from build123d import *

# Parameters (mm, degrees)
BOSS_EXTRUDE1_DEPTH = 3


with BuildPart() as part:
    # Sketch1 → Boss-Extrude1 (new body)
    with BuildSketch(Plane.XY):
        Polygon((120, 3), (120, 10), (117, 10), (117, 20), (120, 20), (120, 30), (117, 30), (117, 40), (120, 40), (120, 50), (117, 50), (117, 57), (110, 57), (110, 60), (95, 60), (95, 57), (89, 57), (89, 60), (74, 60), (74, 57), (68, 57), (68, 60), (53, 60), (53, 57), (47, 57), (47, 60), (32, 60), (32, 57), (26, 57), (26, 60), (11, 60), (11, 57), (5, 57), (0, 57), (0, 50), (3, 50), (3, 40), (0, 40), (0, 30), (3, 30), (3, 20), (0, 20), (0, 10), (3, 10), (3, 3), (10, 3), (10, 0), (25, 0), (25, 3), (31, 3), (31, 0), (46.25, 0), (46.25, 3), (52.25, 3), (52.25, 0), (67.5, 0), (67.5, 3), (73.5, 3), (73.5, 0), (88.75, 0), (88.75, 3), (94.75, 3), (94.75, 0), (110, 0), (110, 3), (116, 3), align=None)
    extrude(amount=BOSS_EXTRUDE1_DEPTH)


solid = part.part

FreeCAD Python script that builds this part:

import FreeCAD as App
import Part
import Sketcher

doc = App.newDocument("Part")
params = doc.addObject("Spreadsheet::Sheet", "Params")
for row, (alias, value) in enumerate([
    ("sketch1_width", "3 mm"),
    ("sketch1_width2", "7 mm"),
    ("sketch1_width3", "15 mm"),
    ("sketch1_width4", "6 mm"),
    ("sketch1_width5", "11 mm"),
    ("pad1_length", "3 mm"),
], start=1):
    params.set(f"A{row}", alias)
    params.set(f"B{row}", "=" + value)
    params.setAlias(f"B{row}", alias)

body = doc.addObject("PartDesign::Body", "Body")

sketch1 = body.newObject("Sketcher::SketchObject", "Sketch")
sketch1.AttachmentSupport = (doc.getObject("XY_Plane"), [""])
sketch1.MapMode = "FlatFace"
sketch1.addGeometry(Part.LineSegment(App.Vector(120, 3, 0), App.Vector(120, 10, 0)), False)
sketch1.addGeometry(Part.LineSegment(App.Vector(120, 10, 0), App.Vector(117, 10, 0)), False)
sketch1.addGeometry(Part.LineSegment(App.Vector(117, 10, 0), App.Vector(117, 20, 0)), False)
sketch1.addGeometry(Part.LineSegment(App.Vector(117, 20, 0), App.Vector(120, 20, 0)), False)
sketch1.addGeometry(Part.LineSegment(App.Vector(120, 20, 0), App.Vector(120, 30, 0)), False)
sketch1.addGeometry(Part.LineSegment(App.Vector(120, 30, 0), App.Vector(117, 30, 0)), False)
sketch1.addGeometry(Part.LineSegment(App.Vector(117, 30, 0), App.Vector(117, 40, 0)), False)
sketch1.addGeometry(Part.LineSegment(App.Vector(117, 40, 0), App.Vector(120, 40, 0)), False)
sketch1.addGeometry(Part.LineSegment(App.Vector(120, 40, 0), App.Vector(120, 50, 0)), False)
sketch1.addGeometry(Part.LineSegment(App.Vector(120, 50, 0), App.Vector(117, 50, 0)), False)
sketch1.addGeometry(Part.LineSegment(App.Vector(117, 50, 0), App.Vector(117, 57, 0)), False)
sketch1.addGeometry(Part.LineSegment(App.Vector(117, 57, 0), App.Vector(110, 57, 0)), False)
sketch1.addGeometry(Part.LineSegment(App.Vector(110, 57, 0), App.Vector(110, 60, 0)), False)
sketch1.addGeometry(Part.LineSegment(App.Vector(110, 60, 0), App.Vector(95, 60, 0)), False)
sketch1.addGeometry(Part.LineSegment(App.Vector(95, 60, 0), App.Vector(95, 57, 0)), False)
sketch1.addGeometry(Part.LineSegment(App.Vector(95, 57, 0), App.Vector(89, 57, 0)), False)
sketch1.addGeometry(Part.LineSegment(App.Vector(89, 57, 0), App.Vector(89, 60, 0)), False)
sketch1.addGeometry(Part.LineSegment(App.Vector(89, 60, 0), App.Vector(74, 60, 0)), False)
sketch1.addGeometry(Part.LineSegment(App.Vector(74, 60, 0), App.Vector(74, 57, 0)), False)
sketch1.addGeometry(Part.LineSegment(App.Vector(74, 57, 0), App.Vector(68, 57, 0)), False)
sketch1.addGeometry(Part.LineSegment(App.Vector(68, 57, 0), App.Vector(68, 60, 0)), False)
sketch1.addGeometry(Part.LineSegment(App.Vector(68, 60, 0), App.Vector(53, 60, 0)), False)
sketch1.addGeometry(Part.LineSegment(App.Vector(53, 60, 0), App.Vector(53, 57, 0)), False)
sketch1.addGeometry(Part.LineSegment(App.Vector(53, 57, 0), App.Vector(47, 57, 0)), False)
sketch1.addGeometry(Part.LineSegment(App.Vector(47, 57, 0), App.Vector(47, 60, 0)), False)
sketch1.addGeometry(Part.LineSegment(App.Vector(47, 60, 0), App.Vector(32, 60, 0)), False)
sketch1.addGeometry(Part.LineSegment(App.Vector(32, 60, 0), App.Vector(32, 57, 0)), False)
sketch1.addGeometry(Part.LineSegment(App.Vector(32, 57, 0), App.Vector(26, 57, 0)), False)
sketch1.addGeometry(Part.LineSegment(App.Vector(26, 57, 0), App.Vector(26, 60, 0)), False)
sketch1.addGeometry(Part.LineSegment(App.Vector(26, 60, 0), App.Vector(11, 60, 0)), False)
sketch1.addGeometry(Part.LineSegment(App.Vector(11, 60, 0), App.Vector(11, 57, 0)), False)
sketch1.addGeometry(Part.LineSegment(App.Vector(11, 57, 0), App.Vector(0, 57, 0)), False)
sketch1.addGeometry(Part.LineSegment(App.Vector(0, 57, 0), App.Vector(0, 50, 0)), False)
sketch1.addGeometry(Part.LineSegment(App.Vector(0, 50, 0), App.Vector(3, 50, 0)), False)
sketch1.addGeometry(Part.LineSegment(App.Vector(3, 50, 0), App.Vector(3, 40, 0)), False)
sketch1.addGeometry(Part.LineSegment(App.Vector(3, 40, 0), App.Vector(0, 40, 0)), False)
sketch1.addGeometry(Part.LineSegment(App.Vector(0, 40, 0), App.Vector(0, 30, 0)), False)
sketch1.addGeometry(Part.LineSegment(App.Vector(0, 30, 0), App.Vector(3, 30, 0)), False)
sketch1.addGeometry(Part.LineSegment(App.Vector(3, 30, 0), App.Vector(3, 20, 0)), False)
sketch1.addGeometry(Part.LineSegment(App.Vector(3, 20, 0), App.Vector(0, 20, 0)), False)
sketch1.addGeometry(Part.LineSegment(App.Vector(0, 20, 0), App.Vector(0, 10, 0)), False)
sketch1.addGeometry(Part.LineSegment(App.Vector(0, 10, 0), App.Vector(3, 10, 0)), False)
sketch1.addGeometry(Part.LineSegment(App.Vector(3, 10, 0), App.Vector(3, 3, 0)), False)
sketch1.addGeometry(Part.LineSegment(App.Vector(3, 3, 0), App.Vector(10, 3, 0)), False)
sketch1.addGeometry(Part.LineSegment(App.Vector(10, 3, 0), App.Vector(10, 0, 0)), False)
sketch1.addGeometry(Part.LineSegment(App.Vector(10, 0, 0), App.Vector(25, 0, 0)), False)
sketch1.addGeometry(Part.LineSegment(App.Vector(25, 0, 0), App.Vector(25, 3, 0)), False)
sketch1.addGeometry(Part.LineSegment(App.Vector(25, 3, 0), App.Vector(31, 3, 0)), False)
sketch1.addGeometry(Part.LineSegment(App.Vector(31, 3, 0), App.Vector(31, 0, 0)), False)
sketch1.addGeometry(Part.LineSegment(App.Vector(31, 0, 0), App.Vector(46.2, 0, 0)), False)
sketch1.addGeometry(Part.LineSegment(App.Vector(46.2, 0, 0), App.Vector(46.2, 3, 0)), False)
sketch1.addGeometry(Part.LineSegment(App.Vector(46.2, 3, 0), App.Vector(52.2, 3, 0)), False)
sketch1.addGeometry(Part.LineSegment(App.Vector(52.2, 3, 0), App.Vector(52.2, 0, 0)), False)
sketch1.addGeometry(Part.LineSegment(App.Vector(52.2, 0, 0), App.Vector(67.5, 0, 0)), False)
sketch1.addGeometry(Part.LineSegment(App.Vector(67.5, 0, 0), App.Vector(67.5, 3, 0)), False)
sketch1.addGeometry(Part.LineSegment(App.Vector(67.5, 3, 0), App.Vector(73.5, 3, 0)), False)
sketch1.addGeometry(Part.LineSegment(App.Vector(73.5, 3, 0), App.Vector(73.5, 0, 0)), False)
sketch1.addGeometry(Part.LineSegment(App.Vector(73.5, 0, 0), App.Vector(88.8, 0, 0)), False)
sketch1.addGeometry(Part.LineSegment(App.Vector(88.8, 0, 0), App.Vector(88.8, 3, 0)), False)
sketch1.addGeometry(Part.LineSegment(App.Vector(88.8, 3, 0), App.Vector(94.8, 3, 0)), False)
sketch1.addGeometry(Part.LineSegment(App.Vector(94.8, 3, 0), App.Vector(94.8, 0, 0)), False)
sketch1.addGeometry(Part.LineSegment(App.Vector(94.8, 0, 0), App.Vector(110, 0, 0)), False)
sketch1.addGeometry(Part.LineSegment(App.Vector(110, 0, 0), App.Vector(110, 3, 0)), False)
sketch1.addGeometry(Part.LineSegment(App.Vector(110, 3, 0), App.Vector(120, 3, 0)), False)
sketch1.addConstraint(Sketcher.Constraint("Coincident", 0, 2, 1, 1))
sketch1.addConstraint(Sketcher.Constraint("Coincident", 1, 2, 2, 1))
sketch1.addConstraint(Sketcher.Constraint("Coincident", 2, 2, 3, 1))
sketch1.addConstraint(Sketcher.Constraint("Coincident", 3, 2, 4, 1))
sketch1.addConstraint(Sketcher.Constraint("Coincident", 4, 2, 5, 1))
sketch1.addConstraint(Sketcher.Constraint("Coincident", 5, 2, 6, 1))
sketch1.addConstraint(Sketcher.Constraint("Coincident", 6, 2, 7, 1))
sketch1.addConstraint(Sketcher.Constraint("Coincident", 7, 2, 8, 1))
sketch1.addConstraint(Sketcher.Constraint("Coincident", 8, 2, 9, 1))
sketch1.addConstraint(Sketcher.Constraint("Coincident", 9, 2, 10, 1))
sketch1.addConstraint(Sketcher.Constraint("Coincident", 10, 2, 11, 1))
sketch1.addConstraint(Sketcher.Constraint("Coincident", 11, 2, 12, 1))
sketch1.addConstraint(Sketcher.Constraint("Coincident", 12, 2, 13, 1))
sketch1.addConstraint(Sketcher.Constraint("Coincident", 13, 2, 14, 1))
sketch1.addConstraint(Sketcher.Constraint("Coincident", 14, 2, 15, 1))
sketch1.addConstraint(Sketcher.Constraint("Coincident", 15, 2, 16, 1))
sketch1.addConstraint(Sketcher.Constraint("Coincident", 16, 2, 17, 1))
sketch1.addConstraint(Sketcher.Constraint("Coincident", 17, 2, 18, 1))
sketch1.addConstraint(Sketcher.Constraint("Coincident", 18, 2, 19, 1))
sketch1.addConstraint(Sketcher.Constraint("Coincident", 19, 2, 20, 1))
sketch1.addConstraint(Sketcher.Constraint("Coincident", 20, 2, 21, 1))
sketch1.addConstraint(Sketcher.Constraint("Coincident", 21, 2, 22, 1))
sketch1.addConstraint(Sketcher.Constraint("Coincident", 22, 2, 23, 1))
sketch1.addConstraint(Sketcher.Constraint("Coincident", 23, 2, 24, 1))
sketch1.addConstraint(Sketcher.Constraint("Coincident", 24, 2, 25, 1))
sketch1.addConstraint(Sketcher.Constraint("Coincident", 25, 2, 26, 1))
sketch1.addConstraint(Sketcher.Constraint("Coincident", 26, 2, 27, 1))
sketch1.addConstraint(Sketcher.Constraint("Coincident", 27, 2, 28, 1))
sketch1.addConstraint(Sketcher.Constraint("Coincident", 28, 2, 29, 1))
sketch1.addConstraint(Sketcher.Constraint("Coincident", 29, 2, 30, 1))
sketch1.addConstraint(Sketcher.Constraint("Coincident", 30, 2, 31, 1))
sketch1.addConstraint(Sketcher.Constraint("Coincident", 31, 2, 32, 1))
sketch1.addConstraint(Sketcher.Constraint("Coincident", 32, 2, 33, 1))
sketch1.addConstraint(Sketcher.Constraint("Coincident", 33, 2, 34, 1))
sketch1.addConstraint(Sketcher.Constraint("Coincident", 34, 2, 35, 1))
sketch1.addConstraint(Sketcher.Constraint("Coincident", 35, 2, 36, 1))
sketch1.addConstraint(Sketcher.Constraint("Coincident", 36, 2, 37, 1))
sketch1.addConstraint(Sketcher.Constraint("Coincident", 37, 2, 38, 1))
sketch1.addConstraint(Sketcher.Constraint("Coincident", 38, 2, 39, 1))
sketch1.addConstraint(Sketcher.Constraint("Coincident", 39, 2, 40, 1))
sketch1.addConstraint(Sketcher.Constraint("Coincident", 40, 2, 41, 1))
sketch1.addConstraint(Sketcher.Constraint("Coincident", 41, 2, 42, 1))
sketch1.addConstraint(Sketcher.Constraint("Coincident", 42, 2, 43, 1))
sketch1.addConstraint(Sketcher.Constraint("Coincident", 43, 2, 44, 1))
sketch1.addConstraint(Sketcher.Constraint("Coincident", 44, 2, 45, 1))
sketch1.addConstraint(Sketcher.Constraint("Coincident", 45, 2, 46, 1))
sketch1.addConstraint(Sketcher.Constraint("Coincident", 46, 2, 47, 1))
sketch1.addConstraint(Sketcher.Constraint("Coincident", 47, 2, 48, 1))
sketch1.addConstraint(Sketcher.Constraint("Coincident", 48, 2, 49, 1))
sketch1.addConstraint(Sketcher.Constraint("Coincident", 49, 2, 50, 1))
sketch1.addConstraint(Sketcher.Constraint("Coincident", 50, 2, 51, 1))
sketch1.addConstraint(Sketcher.Constraint("Coincident", 51, 2, 52, 1))
sketch1.addConstraint(Sketcher.Constraint("Coincident", 52, 2, 53, 1))
sketch1.addConstraint(Sketcher.Constraint("Coincident", 53, 2, 54, 1))
sketch1.addConstraint(Sketcher.Constraint("Coincident", 54, 2, 55, 1))
sketch1.addConstraint(Sketcher.Constraint("Coincident", 55, 2, 56, 1))
sketch1.addConstraint(Sketcher.Constraint("Coincident", 56, 2, 57, 1))
sketch1.addConstraint(Sketcher.Constraint("Coincident", 57, 2, 58, 1))
sketch1.addConstraint(Sketcher.Constraint("Coincident", 58, 2, 59, 1))
sketch1.addConstraint(Sketcher.Constraint("Coincident", 59, 2, 60, 1))
sketch1.addConstraint(Sketcher.Constraint("Coincident", 60, 2, 61, 1))
sketch1.addConstraint(Sketcher.Constraint("Coincident", 61, 2, 62, 1))
sketch1.addConstraint(Sketcher.Constraint("Coincident", 62, 2, 63, 1))
sketch1.addConstraint(Sketcher.Constraint("Coincident", 63, 2, 0, 1))
sketch1.addConstraint(Sketcher.Constraint("Vertical", 0))
sketch1.addConstraint(Sketcher.Constraint("Horizontal", 1))
sketch1.addConstraint(Sketcher.Constraint("Vertical", 2))
sketch1.addConstraint(Sketcher.Constraint("Horizontal", 3))
sketch1.addConstraint(Sketcher.Constraint("Vertical", 4))
sketch1.addConstraint(Sketcher.Constraint("Horizontal", 5))
sketch1.addConstraint(Sketcher.Constraint("Vertical", 6))
sketch1.addConstraint(Sketcher.Constraint("Horizontal", 7))
sketch1.addConstraint(Sketcher.Constraint("Vertical", 8))
sketch1.addConstraint(Sketcher.Constraint("Horizontal", 9))
sketch1.addConstraint(Sketcher.Constraint("Vertical", 10))
sketch1.addConstraint(Sketcher.Constraint("Horizontal", 11))
sketch1.addConstraint(Sketcher.Constraint("Vertical", 12))
sketch1.addConstraint(Sketcher.Constraint("Horizontal", 13))
sketch1.addConstraint(Sketcher.Constraint("Vertical", 14))
sketch1.addConstraint(Sketcher.Constraint("Horizontal", 15))
sketch1.addConstraint(Sketcher.Constraint("Vertical", 16))
sketch1.addConstraint(Sketcher.Constraint("Horizontal", 17))
sketch1.addConstraint(Sketcher.Constraint("Vertical", 18))
sketch1.addConstraint(Sketcher.Constraint("Horizontal", 19))
sketch1.addConstraint(Sketcher.Constraint("Vertical", 20))
sketch1.addConstraint(Sketcher.Constraint("Horizontal", 21))
sketch1.addConstraint(Sketcher.Constraint("Vertical", 22))
sketch1.addConstraint(Sketcher.Constraint("Horizontal", 23))
sketch1.addConstraint(Sketcher.Constraint("Vertical", 24))
sketch1.addConstraint(Sketcher.Constraint("Horizontal", 25))
sketch1.addConstraint(Sketcher.Constraint("Vertical", 26))
sketch1.addConstraint(Sketcher.Constraint("Horizontal", 27))
sketch1.addConstraint(Sketcher.Constraint("Vertical", 28))
sketch1.addConstraint(Sketcher.Constraint("Horizontal", 29))
sketch1.addConstraint(Sketcher.Constraint("Vertical", 30))
sketch1.addConstraint(Sketcher.Constraint("Horizontal", 31))
sketch1.addConstraint(Sketcher.Constraint("Vertical", 32))
sketch1.addConstraint(Sketcher.Constraint("Horizontal", 33))
sketch1.addConstraint(Sketcher.Constraint("Vertical", 34))
sketch1.addConstraint(Sketcher.Constraint("Horizontal", 35))
sketch1.addConstraint(Sketcher.Constraint("Vertical", 36))
sketch1.addConstraint(Sketcher.Constraint("Horizontal", 37))
sketch1.addConstraint(Sketcher.Constraint("Vertical", 38))
sketch1.addConstraint(Sketcher.Constraint("Horizontal", 39))
sketch1.addConstraint(Sketcher.Constraint("Vertical", 40))
sketch1.addConstraint(Sketcher.Constraint("Horizontal", 41))
sketch1.addConstraint(Sketcher.Constraint("Vertical", 42))
sketch1.addConstraint(Sketcher.Constraint("Horizontal", 43))
sketch1.addConstraint(Sketcher.Constraint("Vertical", 44))
sketch1.addConstraint(Sketcher.Constraint("Horizontal", 45))
sketch1.addConstraint(Sketcher.Constraint("Vertical", 46))
sketch1.addConstraint(Sketcher.Constraint("Horizontal", 47))
sketch1.addConstraint(Sketcher.Constraint("Vertical", 48))
sketch1.addConstraint(Sketcher.Constraint("Horizontal", 49))
sketch1.addConstraint(Sketcher.Constraint("Vertical", 50))
sketch1.addConstraint(Sketcher.Constraint("Horizontal", 51))
sketch1.addConstraint(Sketcher.Constraint("Vertical", 52))
sketch1.addConstraint(Sketcher.Constraint("Horizontal", 53))
sketch1.addConstraint(Sketcher.Constraint("Vertical", 54))
sketch1.addConstraint(Sketcher.Constraint("Horizontal", 55))
sketch1.addConstraint(Sketcher.Constraint("Vertical", 56))
sketch1.addConstraint(Sketcher.Constraint("Horizontal", 57))
sketch1.addConstraint(Sketcher.Constraint("Vertical", 58))
sketch1.addConstraint(Sketcher.Constraint("Horizontal", 59))
sketch1.addConstraint(Sketcher.Constraint("Vertical", 60))
sketch1.addConstraint(Sketcher.Constraint("Horizontal", 61))
sketch1.addConstraint(Sketcher.Constraint("Vertical", 62))
sketch1.addConstraint(Sketcher.Constraint("Horizontal", 63))
sketch1.addConstraint(Sketcher.Constraint("PointOnObject", 31, 2, -2))
sketch1.addConstraint(Sketcher.Constraint("PointOnObject", 35, 2, -2))
sketch1.addConstraint(Sketcher.Constraint("PointOnObject", 39, 2, -2))
sketch1.addConstraint(Sketcher.Constraint("PointOnObject", 44, 2, -1))
sketch1.addConstraint(Sketcher.Constraint("PointOnObject", 48, 2, -1))
sketch1.addConstraint(Sketcher.Constraint("PointOnObject", 52, 2, -1))
sketch1.addConstraint(Sketcher.Constraint("PointOnObject", 56, 2, -1))
sketch1.addConstraint(Sketcher.Constraint("PointOnObject", 60, 2, -1))
sketch1.addConstraint(Sketcher.Constraint("Horizontal", 11, 2, 14, 2))
sketch1.addConstraint(Sketcher.Constraint("Horizontal", 13, 2, 16, 2))
sketch1.addConstraint(Sketcher.Constraint("Horizontal", 15, 2, 18, 2))
sketch1.addConstraint(Sketcher.Constraint("Horizontal", 17, 2, 20, 2))
sketch1.addConstraint(Sketcher.Constraint("Horizontal", 19, 2, 22, 2))
sketch1.addConstraint(Sketcher.Constraint("Horizontal", 21, 2, 24, 2))
sketch1.addConstraint(Sketcher.Constraint("Horizontal", 23, 2, 26, 2))
sketch1.addConstraint(Sketcher.Constraint("Horizontal", 25, 2, 28, 2))
sketch1.addConstraint(Sketcher.Constraint("Horizontal", 27, 2, 30, 2))
sketch1.addConstraint(Sketcher.Constraint("Horizontal", 9, 2, 32, 2))
sketch1.addConstraint(Sketcher.Constraint("Horizontal", 7, 2, 34, 2))
sketch1.addConstraint(Sketcher.Constraint("Horizontal", 5, 2, 36, 2))
sketch1.addConstraint(Sketcher.Constraint("Horizontal", 3, 2, 38, 2))
sketch1.addConstraint(Sketcher.Constraint("Horizontal", 1, 2, 40, 2))
sketch1.addConstraint(Sketcher.Constraint("Horizontal", 43, 2, 46, 2))
sketch1.addConstraint(Sketcher.Constraint("Horizontal", 47, 2, 50, 2))
sketch1.addConstraint(Sketcher.Constraint("Horizontal", 51, 2, 54, 2))
sketch1.addConstraint(Sketcher.Constraint("Horizontal", 55, 2, 58, 2))
sketch1.addConstraint(Sketcher.Constraint("Horizontal", 59, 2, 62, 2))
sketch1.addConstraint(Sketcher.Constraint("Vertical", 0, 2, 3, 2))
sketch1.addConstraint(Sketcher.Constraint("Vertical", 2, 2, 5, 2))
sketch1.addConstraint(Sketcher.Constraint("Vertical", 4, 2, 7, 2))
sketch1.addConstraint(Sketcher.Constraint("Vertical", 6, 2, 9, 2))
sketch1.addConstraint(Sketcher.Constraint("Vertical", 34, 2, 37, 2))
sketch1.addConstraint(Sketcher.Constraint("Vertical", 38, 2, 41, 2))
sketch1.addConstraint(Sketcher.Constraint("Vertical", 12, 2, 61, 2))
sketch1.addConstraint(Sketcher.Constraint("Equal", 13, 17))
sketch1.addConstraint(Sketcher.Constraint("Equal", 15, 19))
sketch1.addConstraint(Sketcher.Constraint("Equal", 17, 21))
sketch1.addConstraint(Sketcher.Constraint("Equal", 19, 23))
sketch1.addConstraint(Sketcher.Constraint("Equal", 21, 25))
sketch1.addConstraint(Sketcher.Constraint("Equal", 23, 27))
sketch1.addConstraint(Sketcher.Constraint("Equal", 25, 29))
sketch1.addConstraint(Sketcher.Constraint("Equal", 9, 33))
sketch1.addConstraint(Sketcher.Constraint("Equal", 11, 43))
sketch1.addConstraint(Sketcher.Constraint("Equal", 29, 45))
sketch1.addConstraint(Sketcher.Constraint("Equal", 27, 47))
sketch1.addConstraint(Sketcher.Constraint("Equal", 47, 51))
sketch1.addConstraint(Sketcher.Constraint("Equal", 49, 53))
sketch1.addConstraint(Sketcher.Constraint("Equal", 51, 55))
sketch1.addConstraint(Sketcher.Constraint("Equal", 53, 57))
sketch1.addConstraint(Sketcher.Constraint("Equal", 55, 59))
sketch1.addConstraint(Sketcher.Constraint("Equal", 57, 61))
sketch1.addConstraint(Sketcher.Constraint("Equal", 43, 0))
sketch1.addConstraint(Sketcher.Constraint("Equal", 63, 2))
sketch1.addConstraint(Sketcher.Constraint("Equal", 2, 4))
sketch1.addConstraint(Sketcher.Constraint("Equal", 4, 6))
sketch1.addConstraint(Sketcher.Constraint("Equal", 6, 8))
sketch1.addConstraint(Sketcher.Constraint("Equal", 0, 10))
sketch1.addConstraint(Sketcher.Constraint("Equal", 41, 12))
sketch1.addConstraint(Sketcher.Constraint("Equal", 30, 44))
sketch1.addConstraint(Sketcher.Constraint("DistanceX", 1, 2, 1, 1, 3.0))
sketch1.addConstraint(Sketcher.Constraint("DistanceX", 11, 2, 11, 1, 7.0))
sketch1.addConstraint(Sketcher.Constraint("DistanceX", 13, 2, 13, 1, 15.0))
sketch1.addConstraint(Sketcher.Constraint("DistanceX", 15, 2, 15, 1, 6.0))
sketch1.addConstraint(Sketcher.Constraint("DistanceX", 31, 2, 31, 1, 11.0))
sketch1.setExpression("Constraints[187]", "Params.sketch1_width")
sketch1.setExpression("Constraints[188]", "Params.sketch1_width2")
sketch1.setExpression("Constraints[189]", "Params.sketch1_width3")
sketch1.setExpression("Constraints[190]", "Params.sketch1_width4")
sketch1.setExpression("Constraints[191]", "Params.sketch1_width5")
pad1 = body.newObject("PartDesign::Pad", "Pad")
pad1.Profile = sketch1
pad1.setExpression("Length", "Params.pad1_length")

doc.recompute()
